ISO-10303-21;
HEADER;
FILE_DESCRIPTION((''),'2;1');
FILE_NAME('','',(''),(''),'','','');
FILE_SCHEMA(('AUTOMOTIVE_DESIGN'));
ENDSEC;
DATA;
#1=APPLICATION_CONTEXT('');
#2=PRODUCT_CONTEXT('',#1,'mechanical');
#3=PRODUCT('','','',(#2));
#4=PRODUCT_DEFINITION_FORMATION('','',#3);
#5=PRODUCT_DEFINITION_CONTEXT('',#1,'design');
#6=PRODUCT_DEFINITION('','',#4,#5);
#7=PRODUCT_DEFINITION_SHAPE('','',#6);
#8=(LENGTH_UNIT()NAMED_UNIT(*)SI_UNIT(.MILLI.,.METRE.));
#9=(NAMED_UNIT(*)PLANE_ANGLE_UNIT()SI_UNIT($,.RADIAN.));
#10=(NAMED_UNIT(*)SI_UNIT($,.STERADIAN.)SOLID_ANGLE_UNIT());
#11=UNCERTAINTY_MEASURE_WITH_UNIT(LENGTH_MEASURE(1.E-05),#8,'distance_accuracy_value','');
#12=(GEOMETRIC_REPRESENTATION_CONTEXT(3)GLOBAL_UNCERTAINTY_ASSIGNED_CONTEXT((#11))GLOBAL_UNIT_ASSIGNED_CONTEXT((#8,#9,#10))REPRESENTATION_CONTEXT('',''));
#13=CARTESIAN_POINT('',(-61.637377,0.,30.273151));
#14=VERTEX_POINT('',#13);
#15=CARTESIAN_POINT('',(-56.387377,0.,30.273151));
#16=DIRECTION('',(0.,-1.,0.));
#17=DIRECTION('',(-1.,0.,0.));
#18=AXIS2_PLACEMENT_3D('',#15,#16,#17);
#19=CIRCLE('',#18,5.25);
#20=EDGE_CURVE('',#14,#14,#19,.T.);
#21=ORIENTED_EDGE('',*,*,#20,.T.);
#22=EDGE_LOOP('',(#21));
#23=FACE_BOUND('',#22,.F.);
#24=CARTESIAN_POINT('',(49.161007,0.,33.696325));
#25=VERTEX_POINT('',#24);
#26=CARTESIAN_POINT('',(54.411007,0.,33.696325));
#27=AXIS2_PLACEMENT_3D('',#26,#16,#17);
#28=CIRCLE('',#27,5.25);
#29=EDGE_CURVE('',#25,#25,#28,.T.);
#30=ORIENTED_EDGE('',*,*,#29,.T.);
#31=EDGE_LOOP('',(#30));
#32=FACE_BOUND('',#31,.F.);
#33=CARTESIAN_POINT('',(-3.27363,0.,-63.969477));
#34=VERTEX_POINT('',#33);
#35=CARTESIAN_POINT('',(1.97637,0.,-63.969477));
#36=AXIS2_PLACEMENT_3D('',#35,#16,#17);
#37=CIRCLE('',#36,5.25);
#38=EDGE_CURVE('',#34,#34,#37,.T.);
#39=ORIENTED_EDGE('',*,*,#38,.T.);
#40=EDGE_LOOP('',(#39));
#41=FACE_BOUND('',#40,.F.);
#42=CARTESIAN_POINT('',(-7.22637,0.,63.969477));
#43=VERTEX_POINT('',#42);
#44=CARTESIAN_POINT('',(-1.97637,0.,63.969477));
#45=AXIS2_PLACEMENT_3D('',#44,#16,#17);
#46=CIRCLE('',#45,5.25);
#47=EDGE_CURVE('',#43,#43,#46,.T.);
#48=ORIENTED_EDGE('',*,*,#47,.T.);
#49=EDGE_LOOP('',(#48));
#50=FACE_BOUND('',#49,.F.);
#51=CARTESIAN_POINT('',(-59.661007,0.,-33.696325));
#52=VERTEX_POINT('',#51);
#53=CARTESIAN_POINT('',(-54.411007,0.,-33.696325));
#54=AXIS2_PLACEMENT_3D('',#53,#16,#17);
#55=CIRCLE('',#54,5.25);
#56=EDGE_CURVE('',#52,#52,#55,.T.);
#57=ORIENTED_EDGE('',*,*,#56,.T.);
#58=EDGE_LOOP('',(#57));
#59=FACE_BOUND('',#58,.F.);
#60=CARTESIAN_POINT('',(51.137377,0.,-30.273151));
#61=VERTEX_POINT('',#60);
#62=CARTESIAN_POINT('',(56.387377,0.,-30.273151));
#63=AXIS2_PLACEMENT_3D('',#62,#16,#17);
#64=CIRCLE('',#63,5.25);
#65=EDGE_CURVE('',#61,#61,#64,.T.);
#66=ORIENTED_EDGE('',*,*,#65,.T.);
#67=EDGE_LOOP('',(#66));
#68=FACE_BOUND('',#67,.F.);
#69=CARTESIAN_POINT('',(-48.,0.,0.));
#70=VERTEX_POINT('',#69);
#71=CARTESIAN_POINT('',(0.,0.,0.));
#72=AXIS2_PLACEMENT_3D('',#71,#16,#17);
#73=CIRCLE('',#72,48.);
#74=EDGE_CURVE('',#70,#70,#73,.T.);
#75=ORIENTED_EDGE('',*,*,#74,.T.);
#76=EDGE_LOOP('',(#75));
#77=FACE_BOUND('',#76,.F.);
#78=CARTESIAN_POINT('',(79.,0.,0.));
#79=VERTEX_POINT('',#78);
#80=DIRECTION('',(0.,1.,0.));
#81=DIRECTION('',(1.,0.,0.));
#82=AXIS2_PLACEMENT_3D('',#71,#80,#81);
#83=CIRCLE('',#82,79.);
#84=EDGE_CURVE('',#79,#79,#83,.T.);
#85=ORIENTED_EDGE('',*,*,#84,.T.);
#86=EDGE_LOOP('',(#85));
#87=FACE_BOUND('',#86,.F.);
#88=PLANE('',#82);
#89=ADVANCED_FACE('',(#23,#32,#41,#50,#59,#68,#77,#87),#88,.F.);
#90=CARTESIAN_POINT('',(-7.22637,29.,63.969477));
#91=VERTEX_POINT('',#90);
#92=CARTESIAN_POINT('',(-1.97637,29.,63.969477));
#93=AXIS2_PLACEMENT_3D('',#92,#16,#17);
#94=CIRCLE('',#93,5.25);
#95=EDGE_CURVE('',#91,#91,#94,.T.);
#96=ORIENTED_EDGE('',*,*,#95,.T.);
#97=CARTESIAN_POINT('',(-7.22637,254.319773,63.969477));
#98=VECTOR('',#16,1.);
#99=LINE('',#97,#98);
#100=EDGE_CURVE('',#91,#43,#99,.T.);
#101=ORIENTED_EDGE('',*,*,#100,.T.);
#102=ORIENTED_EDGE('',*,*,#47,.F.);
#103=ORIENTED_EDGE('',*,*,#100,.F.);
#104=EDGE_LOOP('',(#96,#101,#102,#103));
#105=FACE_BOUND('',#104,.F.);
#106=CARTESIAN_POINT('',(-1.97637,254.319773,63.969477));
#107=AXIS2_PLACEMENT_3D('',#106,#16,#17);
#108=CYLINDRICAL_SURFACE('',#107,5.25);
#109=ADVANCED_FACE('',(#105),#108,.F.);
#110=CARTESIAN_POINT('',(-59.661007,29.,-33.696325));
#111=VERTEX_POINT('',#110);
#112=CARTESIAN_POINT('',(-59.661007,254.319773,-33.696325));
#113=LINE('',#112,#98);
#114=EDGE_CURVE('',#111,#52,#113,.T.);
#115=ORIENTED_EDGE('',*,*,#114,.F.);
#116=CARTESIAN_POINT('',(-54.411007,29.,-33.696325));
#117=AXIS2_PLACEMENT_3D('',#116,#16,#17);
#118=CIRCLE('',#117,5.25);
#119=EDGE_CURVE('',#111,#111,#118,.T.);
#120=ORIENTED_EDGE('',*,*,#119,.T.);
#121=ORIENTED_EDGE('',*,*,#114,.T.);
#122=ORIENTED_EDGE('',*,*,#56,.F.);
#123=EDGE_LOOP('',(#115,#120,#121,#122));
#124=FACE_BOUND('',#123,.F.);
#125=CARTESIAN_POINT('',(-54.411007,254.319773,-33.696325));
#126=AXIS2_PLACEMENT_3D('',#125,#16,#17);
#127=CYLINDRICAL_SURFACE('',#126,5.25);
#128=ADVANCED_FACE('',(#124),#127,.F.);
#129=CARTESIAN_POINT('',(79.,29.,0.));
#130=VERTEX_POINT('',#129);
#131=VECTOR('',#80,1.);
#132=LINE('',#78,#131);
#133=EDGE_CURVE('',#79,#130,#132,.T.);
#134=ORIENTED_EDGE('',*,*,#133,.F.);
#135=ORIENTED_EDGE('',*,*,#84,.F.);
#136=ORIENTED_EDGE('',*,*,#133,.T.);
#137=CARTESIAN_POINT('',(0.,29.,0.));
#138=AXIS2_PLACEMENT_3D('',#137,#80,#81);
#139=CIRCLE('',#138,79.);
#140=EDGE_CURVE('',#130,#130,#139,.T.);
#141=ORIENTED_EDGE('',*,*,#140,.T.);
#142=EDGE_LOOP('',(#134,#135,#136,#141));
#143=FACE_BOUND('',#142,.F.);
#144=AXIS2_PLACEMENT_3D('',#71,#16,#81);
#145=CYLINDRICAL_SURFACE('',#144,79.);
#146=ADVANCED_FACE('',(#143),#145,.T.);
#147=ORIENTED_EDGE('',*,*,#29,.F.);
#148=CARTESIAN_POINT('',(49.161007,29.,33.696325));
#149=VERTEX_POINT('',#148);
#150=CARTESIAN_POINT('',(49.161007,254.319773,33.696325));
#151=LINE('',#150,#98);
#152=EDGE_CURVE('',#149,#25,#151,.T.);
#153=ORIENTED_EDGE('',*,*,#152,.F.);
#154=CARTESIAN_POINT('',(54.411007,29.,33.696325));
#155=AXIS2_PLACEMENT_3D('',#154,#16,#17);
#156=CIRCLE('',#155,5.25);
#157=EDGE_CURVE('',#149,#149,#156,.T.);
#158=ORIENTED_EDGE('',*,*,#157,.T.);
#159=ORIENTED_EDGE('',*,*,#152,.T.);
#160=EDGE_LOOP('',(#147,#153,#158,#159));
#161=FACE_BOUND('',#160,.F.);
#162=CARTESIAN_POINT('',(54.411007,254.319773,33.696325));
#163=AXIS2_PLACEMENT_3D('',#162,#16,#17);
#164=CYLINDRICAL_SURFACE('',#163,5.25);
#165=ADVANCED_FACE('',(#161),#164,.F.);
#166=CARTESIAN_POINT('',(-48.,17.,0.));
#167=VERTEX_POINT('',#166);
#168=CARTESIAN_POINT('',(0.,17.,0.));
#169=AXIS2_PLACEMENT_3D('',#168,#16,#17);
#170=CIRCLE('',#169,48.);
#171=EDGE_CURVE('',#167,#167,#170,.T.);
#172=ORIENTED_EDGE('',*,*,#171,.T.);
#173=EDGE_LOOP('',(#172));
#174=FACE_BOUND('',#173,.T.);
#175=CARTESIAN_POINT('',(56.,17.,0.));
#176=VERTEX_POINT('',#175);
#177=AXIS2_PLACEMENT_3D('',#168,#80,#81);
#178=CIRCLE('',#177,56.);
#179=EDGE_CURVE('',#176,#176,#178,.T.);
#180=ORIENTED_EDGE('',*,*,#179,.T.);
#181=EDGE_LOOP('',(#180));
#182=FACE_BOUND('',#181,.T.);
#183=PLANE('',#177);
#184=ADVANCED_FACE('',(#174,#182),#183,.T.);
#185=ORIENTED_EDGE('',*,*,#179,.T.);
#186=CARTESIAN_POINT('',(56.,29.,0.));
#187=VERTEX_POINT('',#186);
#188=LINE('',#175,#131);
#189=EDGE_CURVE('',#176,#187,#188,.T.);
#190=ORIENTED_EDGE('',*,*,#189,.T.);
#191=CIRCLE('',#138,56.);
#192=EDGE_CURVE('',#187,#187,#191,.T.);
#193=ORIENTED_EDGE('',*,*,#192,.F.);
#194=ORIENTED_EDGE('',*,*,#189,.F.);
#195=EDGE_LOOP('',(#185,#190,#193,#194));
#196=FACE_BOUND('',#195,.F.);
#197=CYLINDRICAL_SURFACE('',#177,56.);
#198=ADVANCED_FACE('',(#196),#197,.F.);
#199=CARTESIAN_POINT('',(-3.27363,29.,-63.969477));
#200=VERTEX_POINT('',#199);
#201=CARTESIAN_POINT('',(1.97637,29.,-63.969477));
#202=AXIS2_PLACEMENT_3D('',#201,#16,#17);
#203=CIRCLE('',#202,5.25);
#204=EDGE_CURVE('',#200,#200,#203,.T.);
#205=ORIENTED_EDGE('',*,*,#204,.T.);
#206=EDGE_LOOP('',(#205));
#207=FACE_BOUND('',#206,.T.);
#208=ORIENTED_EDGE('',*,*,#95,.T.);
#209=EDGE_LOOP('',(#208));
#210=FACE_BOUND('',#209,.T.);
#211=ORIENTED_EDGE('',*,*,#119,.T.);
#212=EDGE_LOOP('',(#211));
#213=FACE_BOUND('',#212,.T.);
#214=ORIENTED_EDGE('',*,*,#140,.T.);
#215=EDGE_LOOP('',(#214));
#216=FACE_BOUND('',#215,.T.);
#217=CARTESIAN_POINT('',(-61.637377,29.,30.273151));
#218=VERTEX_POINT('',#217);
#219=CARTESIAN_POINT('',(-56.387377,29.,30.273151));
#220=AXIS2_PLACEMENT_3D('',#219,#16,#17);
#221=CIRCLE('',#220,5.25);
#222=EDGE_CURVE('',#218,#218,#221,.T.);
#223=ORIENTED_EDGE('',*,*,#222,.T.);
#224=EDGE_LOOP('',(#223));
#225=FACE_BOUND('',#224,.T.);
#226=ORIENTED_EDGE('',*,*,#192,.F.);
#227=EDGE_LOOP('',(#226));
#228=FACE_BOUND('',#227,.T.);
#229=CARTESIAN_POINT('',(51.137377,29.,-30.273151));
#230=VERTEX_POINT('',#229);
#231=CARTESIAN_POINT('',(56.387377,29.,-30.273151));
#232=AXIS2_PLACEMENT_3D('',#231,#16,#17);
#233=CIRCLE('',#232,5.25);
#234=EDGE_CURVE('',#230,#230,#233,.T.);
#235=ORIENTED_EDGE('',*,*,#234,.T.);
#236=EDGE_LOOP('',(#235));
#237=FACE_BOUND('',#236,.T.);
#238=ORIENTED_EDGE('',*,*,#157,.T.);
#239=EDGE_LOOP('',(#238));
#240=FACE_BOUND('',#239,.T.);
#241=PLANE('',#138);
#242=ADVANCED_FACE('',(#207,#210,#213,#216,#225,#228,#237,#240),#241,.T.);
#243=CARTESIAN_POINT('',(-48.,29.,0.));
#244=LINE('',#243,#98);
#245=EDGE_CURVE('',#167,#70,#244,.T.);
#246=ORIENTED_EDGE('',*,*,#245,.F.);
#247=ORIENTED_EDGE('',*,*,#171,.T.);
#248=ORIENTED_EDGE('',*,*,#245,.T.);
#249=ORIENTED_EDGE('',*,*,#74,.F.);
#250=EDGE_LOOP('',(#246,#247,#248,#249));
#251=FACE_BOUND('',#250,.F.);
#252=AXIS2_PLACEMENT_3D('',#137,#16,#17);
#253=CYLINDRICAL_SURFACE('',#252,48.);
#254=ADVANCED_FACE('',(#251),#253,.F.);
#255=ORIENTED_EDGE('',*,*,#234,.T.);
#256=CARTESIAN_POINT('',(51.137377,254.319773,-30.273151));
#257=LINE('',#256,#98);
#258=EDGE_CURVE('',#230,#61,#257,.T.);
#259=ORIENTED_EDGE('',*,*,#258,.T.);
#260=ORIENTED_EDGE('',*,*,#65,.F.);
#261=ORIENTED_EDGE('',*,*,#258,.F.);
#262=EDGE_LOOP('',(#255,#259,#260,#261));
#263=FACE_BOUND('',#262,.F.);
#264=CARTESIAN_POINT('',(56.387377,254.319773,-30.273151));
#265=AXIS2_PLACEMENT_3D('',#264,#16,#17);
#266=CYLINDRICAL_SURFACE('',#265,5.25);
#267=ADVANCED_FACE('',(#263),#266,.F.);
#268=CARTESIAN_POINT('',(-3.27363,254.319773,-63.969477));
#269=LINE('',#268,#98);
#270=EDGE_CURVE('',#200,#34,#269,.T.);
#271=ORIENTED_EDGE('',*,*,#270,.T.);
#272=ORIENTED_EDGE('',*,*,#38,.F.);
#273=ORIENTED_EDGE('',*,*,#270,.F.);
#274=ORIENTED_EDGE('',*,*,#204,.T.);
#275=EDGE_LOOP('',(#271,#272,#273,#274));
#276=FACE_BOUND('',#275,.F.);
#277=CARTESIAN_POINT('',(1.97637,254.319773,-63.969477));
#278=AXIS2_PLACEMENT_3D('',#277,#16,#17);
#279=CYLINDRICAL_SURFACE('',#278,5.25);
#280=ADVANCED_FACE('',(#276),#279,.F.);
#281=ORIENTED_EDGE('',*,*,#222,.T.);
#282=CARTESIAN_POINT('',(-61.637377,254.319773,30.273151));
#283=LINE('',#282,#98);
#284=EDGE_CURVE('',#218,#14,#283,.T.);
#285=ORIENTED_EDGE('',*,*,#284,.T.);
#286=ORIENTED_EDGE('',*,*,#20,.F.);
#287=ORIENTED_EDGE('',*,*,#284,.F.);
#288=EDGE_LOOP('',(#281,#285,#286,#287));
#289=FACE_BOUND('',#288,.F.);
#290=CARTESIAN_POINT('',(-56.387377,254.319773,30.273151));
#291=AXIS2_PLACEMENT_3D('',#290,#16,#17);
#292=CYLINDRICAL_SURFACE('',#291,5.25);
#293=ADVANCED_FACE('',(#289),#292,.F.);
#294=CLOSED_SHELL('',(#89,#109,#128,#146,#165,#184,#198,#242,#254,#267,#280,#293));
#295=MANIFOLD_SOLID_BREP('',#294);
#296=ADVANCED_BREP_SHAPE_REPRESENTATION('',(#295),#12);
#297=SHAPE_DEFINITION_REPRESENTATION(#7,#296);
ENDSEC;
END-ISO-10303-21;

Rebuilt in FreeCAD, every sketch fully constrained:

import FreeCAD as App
import Part
import Sketcher

V = App.Vector

doc = App.newDocument("Part")
params = doc.addObject("Spreadsheet::Sheet", "Params")
for row, (alias, value) in enumerate([
    ("sketch1_diameter", "158 mm"),
    ("pad1_length", "29 mm"),
    ("sketch2_diameter", "96 mm"),
    ("hole_diameter", "96 mm"),
    ("hole_cbore_diameter", "112 mm"),
    ("hole_cbore_depth", "12 mm"),
    ("sketch3_diameter", "10.5 mm"),
    ("hole2_diameter", "10.5 mm"),
], start=1):
    params.set(f"A{row}", alias)
    params.set(f"B{row}", "=" + value)
    params.setAlias(f"B{row}", alias)

body = doc.addObject("PartDesign::Body", "Body")

sketch1 = body.newObject("Sketcher::SketchObject", "Sketch")
sketch1.AttachmentSupport = (doc.getObject("XZ_Plane"), [""])
sketch1.MapMode = "FlatFace"
sketch1.addGeometry(Part.Circle(V(0, 0, 0), V(0, 0, 1), 79), False)
sketch1.addConstraint([
    Sketcher.Constraint("Coincident", 0, 3, -1, 1),
    Sketcher.Constraint("Diameter", 0, 158.0),
])
sketch1.setExpression("Constraints[1]", "Params.sketch1_diameter")
pad1 = body.newObject("PartDesign::Pad", "Pad")
pad1.Profile = sketch1
pad1.setExpression("Length", "Params.pad1_length")
pad1.Reversed = True

sketch2 = body.newObject("Sketcher::SketchObject", "Sketch001")
sketch2.AttachmentSupport = (doc.getObject("XZ_Plane"), [""])
sketch2.MapMode = "FlatFace"
sketch2.AttachmentOffset = App.Placement(V(0, 0, -29), App.Rotation())
sketch2.addGeometry(Part.Circle(V(0, 0, 0), V(0, 0, 1), 48), False)
sketch2.addConstraint([
    Sketcher.Constraint("Coincident", 0, 3, -1, 1),
    Sketcher.Constraint("Diameter", 0, 96.0),
])
sketch2.setExpression("Constraints[1]", "Params.sketch2_diameter")
doc.recompute()
hole = body.newObject("PartDesign::Hole", "Hole")
hole.Profile = sketch2
hole.ThreadType = "None"
hole.setExpression("Diameter", "Params.hole_diameter")
hole.DepthType = "ThroughAll"
hole.HoleCutType = "Counterbore"
hole.setExpression("HoleCutDiameter", "Params.hole_cbore_diameter")
hole.setExpression("HoleCutDepth", "Params.hole_cbore_depth")
hole.Reversed = True

sketch3 = body.newObject("Sketcher::SketchObject", "Sketch002")
sketch3.AttachmentSupport = (doc.getObject("XZ_Plane"), [""])
sketch3.MapMode = "FlatFace"
sketch3.AttachmentOffset = App.Placement(V(0, 0, -29), App.Rotation())
sketch3.addGeometry([
    Part.Circle(V(54.411007, 33.696325, 0), V(0, 0, 1), 5.25),
    Part.Circle(V(-1.97637, 63.969477, 0), V(0, 0, 1), 5.25),
    Part.Circle(V(-56.387377, 30.273151, 0), V(0, 0, 1), 5.25),
    Part.Circle(V(-54.411007, -33.696325, 0), V(0, 0, 1), 5.25),
    Part.Circle(V(1.97637, -63.969477, 0), V(0, 0, 1), 5.25),
    Part.Circle(V(56.387377, -30.273151, 0), V(0, 0, 1), 5.25),
    Part.Circle(V(0, 0, 0), V(0, 0, 1), 5.25),
], False)
sketch3.addConstraint([
    Sketcher.Constraint("Coincident", 6, 3, -1, 1),
    Sketcher.Constraint("Equal", 0, 1),
    Sketcher.Constraint("Equal", 1, 2),
    Sketcher.Constraint("Equal", 2, 3),
    Sketcher.Constraint("Equal", 3, 4),
    Sketcher.Constraint("Equal", 4, 5),
    Sketcher.Constraint("Equal", 5, 6),
    Sketcher.Constraint("Symmetric", 0, 3, 3, 3, -1, 1),
    Sketcher.Constraint("Symmetric", 1, 3, 4, 3, -1, 1),
    Sketcher.Constraint("Symmetric", 2, 3, 5, 3, -1, 1),
    Sketcher.Constraint("Diameter", 0, 10.5),
    Sketcher.Constraint("DistanceX", 1, 3, -1, 1, 1.97637),
    Sketcher.Constraint("DistanceY", -1, 1, 2, 3, 30.273151),
    Sketcher.Constraint("DistanceY", 0, 3, 1, 3, 30.273151),
    Sketcher.Constraint("DistanceX", 2, 3, 3, 3, 1.97637),
    Sketcher.Constraint("DistanceY", 3, 3, 0, 3, 67.392651),
    Sketcher.Constraint("DistanceX", -1, 1, 0, 3, 54.411007),
])
sketch3.setExpression("Constraints[10]", "Params.sketch3_diameter")
doc.recompute()
hole2 = body.newObject("PartDesign::Hole", "Hole001")
hole2.Profile = sketch3
hole2.ThreadType = "None"
hole2.setExpression("Diameter", "Params.hole2_diameter")
hole2.DepthType = "ThroughAll"
hole2.Reversed = True

doc.recompute()
